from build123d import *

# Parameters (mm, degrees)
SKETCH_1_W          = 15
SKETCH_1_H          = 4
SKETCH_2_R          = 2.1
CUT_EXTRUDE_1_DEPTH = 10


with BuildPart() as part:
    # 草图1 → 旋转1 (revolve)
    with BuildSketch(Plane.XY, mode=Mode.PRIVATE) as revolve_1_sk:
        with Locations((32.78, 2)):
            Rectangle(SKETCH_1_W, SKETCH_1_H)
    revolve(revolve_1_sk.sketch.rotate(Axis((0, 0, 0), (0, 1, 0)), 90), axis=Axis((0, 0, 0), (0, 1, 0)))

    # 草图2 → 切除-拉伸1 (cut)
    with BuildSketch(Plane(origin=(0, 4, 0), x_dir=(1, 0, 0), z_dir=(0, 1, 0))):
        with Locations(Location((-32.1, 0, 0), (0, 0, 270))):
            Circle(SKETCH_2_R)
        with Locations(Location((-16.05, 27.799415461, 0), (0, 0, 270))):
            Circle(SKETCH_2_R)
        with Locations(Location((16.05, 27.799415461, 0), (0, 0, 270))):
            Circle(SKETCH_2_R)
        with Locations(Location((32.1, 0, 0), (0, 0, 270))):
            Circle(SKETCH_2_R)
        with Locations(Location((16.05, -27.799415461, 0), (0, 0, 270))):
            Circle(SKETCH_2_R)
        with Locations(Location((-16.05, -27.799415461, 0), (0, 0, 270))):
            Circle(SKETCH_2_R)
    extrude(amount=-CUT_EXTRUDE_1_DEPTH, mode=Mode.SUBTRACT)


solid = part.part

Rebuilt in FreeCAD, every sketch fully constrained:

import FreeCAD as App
import Part
import Sketcher
from FreeCAD import Vector

doc = App.newDocument("Part")
body = doc.addObject("PartDesign::Body", "Body")

sketch1 = doc.addObject("Sketcher::SketchObject", "Sketch")
body.addObject(sketch1)
sketch1.AttachmentSupport = (doc.XY_Plane, [""])
sketch1.MapMode = "FlatFace"
sketch1.addGeometry(Part.LineSegment(Vector(25.28, 4, 0), Vector(25.28, 0, 0)), False)
sketch1.addGeometry(Part.LineSegment(Vector(25.28, 0, 0), Vector(40.28, 0, 0)), False)
sketch1.addGeometry(Part.LineSegment(Vector(40.28, 0, 0), Vector(40.28, 4, 0)), False)
sketch1.addGeometry(Part.LineSegment(Vector(40.28, 4, 0), Vector(25.28, 4, 0)), False)
sketch1.addConstraint(Sketcher.Constraint("Coincident", 0, 2, 1, 1))
sketch1.addConstraint(Sketcher.Constraint("Coincident", 1, 2, 2, 1))
sketch1.addConstraint(Sketcher.Constraint("Coincident", 2, 2, 3, 1))
sketch1.addConstraint(Sketcher.Constraint("Coincident", 3, 2, 0, 1))
sketch1.addConstraint(Sketcher.Constraint("Vertical", 0))
sketch1.addConstraint(Sketcher.Constraint("Horizontal", 1))
sketch1.addConstraint(Sketcher.Constraint("Vertical", 2))
sketch1.addConstraint(Sketcher.Constraint("Horizontal", 3))
sketch1.addConstraint(Sketcher.Constraint("PointOnObject", 0, 2, -1))
sketch1.addConstraint(Sketcher.Constraint("DistanceX", 1, 1, 1, 2, 15.0))
sketch1.addConstraint(Sketcher.Constraint("DistanceY", 0, 2, 0, 1, 4.0))
sketch1.addConstraint(Sketcher.Constraint("DistanceX", -1, 1, 0, 2, 25.28))
revolution = doc.addObject("PartDesign::Revolution", "Revolution")
body.addObject(revolution)
revolution.Profile = sketch1
revolution.ReferenceAxis = (sketch1, ["V_Axis"])
revolution.Angle = 360

sketch2 = doc.addObject("Sketcher::SketchObject", "Sketch001")
body.addObject(sketch2)
sketch2.AttachmentSupport = (doc.XZ_Plane, [""])
sketch2.MapMode = "FlatFace"
sketch2.AttachmentOffset = App.Placement(Vector(0, 0, -4), App.Rotation())
sketch2.addGeometry(Part.Circle(Vector(-32.1, 0, 0), Vector(0, 0, 1), 2.1), False)
sketch2.addGeometry(Part.Circle(Vector(-16.05, -27.799415, 0), Vector(0, 0, 1), 2.1), False)
sketch2.addGeometry(Part.Circle(Vector(16.05, -27.799415, 0), Vector(0, 0, 1), 2.1), False)
sketch2.addGeometry(Part.Circle(Vector(32.1, 0, 0), Vector(0, 0, 1), 2.1), False)
sketch2.addGeometry(Part.Circle(Vector(16.05, 27.799415, 0), Vector(0, 0, 1), 2.1), False)
sketch2.addGeometry(Part.Circle(Vector(-16.05, 27.799415, 0), Vector(0, 0, 1), 2.1), False)
sketch2.addConstraint(Sketcher.Constraint("Equal", 0, 1))
sketch2.addConstraint(Sketcher.Constraint("Equal", 1, 2))
sketch2.addConstraint(Sketcher.Constraint("Equal", 2, 3))
sketch2.addConstraint(Sketcher.Constraint("Equal", 3, 4))
sketch2.addConstraint(Sketcher.Constraint("Equal", 4, 5))
sketch2.addConstraint(Sketcher.Constraint("Symmetric", 0, 3, 3, 3, -1, 1))
sketch2.addConstraint(Sketcher.Constraint("Symmetric", 1, 3, 4, 3, -1, 1))
sketch2.addConstraint(Sketcher.Constraint("Symmetric", 2, 3, 5, 3, -1, 1))
sketch2.addConstraint(Sketcher.Constraint("Symmetric", 1, 3, 2, 3, -2))
sketch2.addConstraint(Sketcher.Constraint("PointOnObject", 0, 3, -1))
sketch2.addConstraint(Sketcher.Constraint("Diameter", 0, 4.2))
sketch2.addConstraint(Sketcher.Constraint("DistanceX", 0, 3, -1, 1, 32.1))
sketch2.addConstraint(Sketcher.Constraint("DistanceX", 1, 3, 2, 3, 32.1))
sketch2.addConstraint(Sketcher.Constraint("DistanceY", 2, 3, 4, 3, 55.598831))
pocket1 = doc.addObject("PartDesign::Pocket", "Pocket")
body.addObject(pocket1)
pocket1.Profile = sketch2
pocket1.Length = 10
pocket1.Reversed = True

doc.recompute()
